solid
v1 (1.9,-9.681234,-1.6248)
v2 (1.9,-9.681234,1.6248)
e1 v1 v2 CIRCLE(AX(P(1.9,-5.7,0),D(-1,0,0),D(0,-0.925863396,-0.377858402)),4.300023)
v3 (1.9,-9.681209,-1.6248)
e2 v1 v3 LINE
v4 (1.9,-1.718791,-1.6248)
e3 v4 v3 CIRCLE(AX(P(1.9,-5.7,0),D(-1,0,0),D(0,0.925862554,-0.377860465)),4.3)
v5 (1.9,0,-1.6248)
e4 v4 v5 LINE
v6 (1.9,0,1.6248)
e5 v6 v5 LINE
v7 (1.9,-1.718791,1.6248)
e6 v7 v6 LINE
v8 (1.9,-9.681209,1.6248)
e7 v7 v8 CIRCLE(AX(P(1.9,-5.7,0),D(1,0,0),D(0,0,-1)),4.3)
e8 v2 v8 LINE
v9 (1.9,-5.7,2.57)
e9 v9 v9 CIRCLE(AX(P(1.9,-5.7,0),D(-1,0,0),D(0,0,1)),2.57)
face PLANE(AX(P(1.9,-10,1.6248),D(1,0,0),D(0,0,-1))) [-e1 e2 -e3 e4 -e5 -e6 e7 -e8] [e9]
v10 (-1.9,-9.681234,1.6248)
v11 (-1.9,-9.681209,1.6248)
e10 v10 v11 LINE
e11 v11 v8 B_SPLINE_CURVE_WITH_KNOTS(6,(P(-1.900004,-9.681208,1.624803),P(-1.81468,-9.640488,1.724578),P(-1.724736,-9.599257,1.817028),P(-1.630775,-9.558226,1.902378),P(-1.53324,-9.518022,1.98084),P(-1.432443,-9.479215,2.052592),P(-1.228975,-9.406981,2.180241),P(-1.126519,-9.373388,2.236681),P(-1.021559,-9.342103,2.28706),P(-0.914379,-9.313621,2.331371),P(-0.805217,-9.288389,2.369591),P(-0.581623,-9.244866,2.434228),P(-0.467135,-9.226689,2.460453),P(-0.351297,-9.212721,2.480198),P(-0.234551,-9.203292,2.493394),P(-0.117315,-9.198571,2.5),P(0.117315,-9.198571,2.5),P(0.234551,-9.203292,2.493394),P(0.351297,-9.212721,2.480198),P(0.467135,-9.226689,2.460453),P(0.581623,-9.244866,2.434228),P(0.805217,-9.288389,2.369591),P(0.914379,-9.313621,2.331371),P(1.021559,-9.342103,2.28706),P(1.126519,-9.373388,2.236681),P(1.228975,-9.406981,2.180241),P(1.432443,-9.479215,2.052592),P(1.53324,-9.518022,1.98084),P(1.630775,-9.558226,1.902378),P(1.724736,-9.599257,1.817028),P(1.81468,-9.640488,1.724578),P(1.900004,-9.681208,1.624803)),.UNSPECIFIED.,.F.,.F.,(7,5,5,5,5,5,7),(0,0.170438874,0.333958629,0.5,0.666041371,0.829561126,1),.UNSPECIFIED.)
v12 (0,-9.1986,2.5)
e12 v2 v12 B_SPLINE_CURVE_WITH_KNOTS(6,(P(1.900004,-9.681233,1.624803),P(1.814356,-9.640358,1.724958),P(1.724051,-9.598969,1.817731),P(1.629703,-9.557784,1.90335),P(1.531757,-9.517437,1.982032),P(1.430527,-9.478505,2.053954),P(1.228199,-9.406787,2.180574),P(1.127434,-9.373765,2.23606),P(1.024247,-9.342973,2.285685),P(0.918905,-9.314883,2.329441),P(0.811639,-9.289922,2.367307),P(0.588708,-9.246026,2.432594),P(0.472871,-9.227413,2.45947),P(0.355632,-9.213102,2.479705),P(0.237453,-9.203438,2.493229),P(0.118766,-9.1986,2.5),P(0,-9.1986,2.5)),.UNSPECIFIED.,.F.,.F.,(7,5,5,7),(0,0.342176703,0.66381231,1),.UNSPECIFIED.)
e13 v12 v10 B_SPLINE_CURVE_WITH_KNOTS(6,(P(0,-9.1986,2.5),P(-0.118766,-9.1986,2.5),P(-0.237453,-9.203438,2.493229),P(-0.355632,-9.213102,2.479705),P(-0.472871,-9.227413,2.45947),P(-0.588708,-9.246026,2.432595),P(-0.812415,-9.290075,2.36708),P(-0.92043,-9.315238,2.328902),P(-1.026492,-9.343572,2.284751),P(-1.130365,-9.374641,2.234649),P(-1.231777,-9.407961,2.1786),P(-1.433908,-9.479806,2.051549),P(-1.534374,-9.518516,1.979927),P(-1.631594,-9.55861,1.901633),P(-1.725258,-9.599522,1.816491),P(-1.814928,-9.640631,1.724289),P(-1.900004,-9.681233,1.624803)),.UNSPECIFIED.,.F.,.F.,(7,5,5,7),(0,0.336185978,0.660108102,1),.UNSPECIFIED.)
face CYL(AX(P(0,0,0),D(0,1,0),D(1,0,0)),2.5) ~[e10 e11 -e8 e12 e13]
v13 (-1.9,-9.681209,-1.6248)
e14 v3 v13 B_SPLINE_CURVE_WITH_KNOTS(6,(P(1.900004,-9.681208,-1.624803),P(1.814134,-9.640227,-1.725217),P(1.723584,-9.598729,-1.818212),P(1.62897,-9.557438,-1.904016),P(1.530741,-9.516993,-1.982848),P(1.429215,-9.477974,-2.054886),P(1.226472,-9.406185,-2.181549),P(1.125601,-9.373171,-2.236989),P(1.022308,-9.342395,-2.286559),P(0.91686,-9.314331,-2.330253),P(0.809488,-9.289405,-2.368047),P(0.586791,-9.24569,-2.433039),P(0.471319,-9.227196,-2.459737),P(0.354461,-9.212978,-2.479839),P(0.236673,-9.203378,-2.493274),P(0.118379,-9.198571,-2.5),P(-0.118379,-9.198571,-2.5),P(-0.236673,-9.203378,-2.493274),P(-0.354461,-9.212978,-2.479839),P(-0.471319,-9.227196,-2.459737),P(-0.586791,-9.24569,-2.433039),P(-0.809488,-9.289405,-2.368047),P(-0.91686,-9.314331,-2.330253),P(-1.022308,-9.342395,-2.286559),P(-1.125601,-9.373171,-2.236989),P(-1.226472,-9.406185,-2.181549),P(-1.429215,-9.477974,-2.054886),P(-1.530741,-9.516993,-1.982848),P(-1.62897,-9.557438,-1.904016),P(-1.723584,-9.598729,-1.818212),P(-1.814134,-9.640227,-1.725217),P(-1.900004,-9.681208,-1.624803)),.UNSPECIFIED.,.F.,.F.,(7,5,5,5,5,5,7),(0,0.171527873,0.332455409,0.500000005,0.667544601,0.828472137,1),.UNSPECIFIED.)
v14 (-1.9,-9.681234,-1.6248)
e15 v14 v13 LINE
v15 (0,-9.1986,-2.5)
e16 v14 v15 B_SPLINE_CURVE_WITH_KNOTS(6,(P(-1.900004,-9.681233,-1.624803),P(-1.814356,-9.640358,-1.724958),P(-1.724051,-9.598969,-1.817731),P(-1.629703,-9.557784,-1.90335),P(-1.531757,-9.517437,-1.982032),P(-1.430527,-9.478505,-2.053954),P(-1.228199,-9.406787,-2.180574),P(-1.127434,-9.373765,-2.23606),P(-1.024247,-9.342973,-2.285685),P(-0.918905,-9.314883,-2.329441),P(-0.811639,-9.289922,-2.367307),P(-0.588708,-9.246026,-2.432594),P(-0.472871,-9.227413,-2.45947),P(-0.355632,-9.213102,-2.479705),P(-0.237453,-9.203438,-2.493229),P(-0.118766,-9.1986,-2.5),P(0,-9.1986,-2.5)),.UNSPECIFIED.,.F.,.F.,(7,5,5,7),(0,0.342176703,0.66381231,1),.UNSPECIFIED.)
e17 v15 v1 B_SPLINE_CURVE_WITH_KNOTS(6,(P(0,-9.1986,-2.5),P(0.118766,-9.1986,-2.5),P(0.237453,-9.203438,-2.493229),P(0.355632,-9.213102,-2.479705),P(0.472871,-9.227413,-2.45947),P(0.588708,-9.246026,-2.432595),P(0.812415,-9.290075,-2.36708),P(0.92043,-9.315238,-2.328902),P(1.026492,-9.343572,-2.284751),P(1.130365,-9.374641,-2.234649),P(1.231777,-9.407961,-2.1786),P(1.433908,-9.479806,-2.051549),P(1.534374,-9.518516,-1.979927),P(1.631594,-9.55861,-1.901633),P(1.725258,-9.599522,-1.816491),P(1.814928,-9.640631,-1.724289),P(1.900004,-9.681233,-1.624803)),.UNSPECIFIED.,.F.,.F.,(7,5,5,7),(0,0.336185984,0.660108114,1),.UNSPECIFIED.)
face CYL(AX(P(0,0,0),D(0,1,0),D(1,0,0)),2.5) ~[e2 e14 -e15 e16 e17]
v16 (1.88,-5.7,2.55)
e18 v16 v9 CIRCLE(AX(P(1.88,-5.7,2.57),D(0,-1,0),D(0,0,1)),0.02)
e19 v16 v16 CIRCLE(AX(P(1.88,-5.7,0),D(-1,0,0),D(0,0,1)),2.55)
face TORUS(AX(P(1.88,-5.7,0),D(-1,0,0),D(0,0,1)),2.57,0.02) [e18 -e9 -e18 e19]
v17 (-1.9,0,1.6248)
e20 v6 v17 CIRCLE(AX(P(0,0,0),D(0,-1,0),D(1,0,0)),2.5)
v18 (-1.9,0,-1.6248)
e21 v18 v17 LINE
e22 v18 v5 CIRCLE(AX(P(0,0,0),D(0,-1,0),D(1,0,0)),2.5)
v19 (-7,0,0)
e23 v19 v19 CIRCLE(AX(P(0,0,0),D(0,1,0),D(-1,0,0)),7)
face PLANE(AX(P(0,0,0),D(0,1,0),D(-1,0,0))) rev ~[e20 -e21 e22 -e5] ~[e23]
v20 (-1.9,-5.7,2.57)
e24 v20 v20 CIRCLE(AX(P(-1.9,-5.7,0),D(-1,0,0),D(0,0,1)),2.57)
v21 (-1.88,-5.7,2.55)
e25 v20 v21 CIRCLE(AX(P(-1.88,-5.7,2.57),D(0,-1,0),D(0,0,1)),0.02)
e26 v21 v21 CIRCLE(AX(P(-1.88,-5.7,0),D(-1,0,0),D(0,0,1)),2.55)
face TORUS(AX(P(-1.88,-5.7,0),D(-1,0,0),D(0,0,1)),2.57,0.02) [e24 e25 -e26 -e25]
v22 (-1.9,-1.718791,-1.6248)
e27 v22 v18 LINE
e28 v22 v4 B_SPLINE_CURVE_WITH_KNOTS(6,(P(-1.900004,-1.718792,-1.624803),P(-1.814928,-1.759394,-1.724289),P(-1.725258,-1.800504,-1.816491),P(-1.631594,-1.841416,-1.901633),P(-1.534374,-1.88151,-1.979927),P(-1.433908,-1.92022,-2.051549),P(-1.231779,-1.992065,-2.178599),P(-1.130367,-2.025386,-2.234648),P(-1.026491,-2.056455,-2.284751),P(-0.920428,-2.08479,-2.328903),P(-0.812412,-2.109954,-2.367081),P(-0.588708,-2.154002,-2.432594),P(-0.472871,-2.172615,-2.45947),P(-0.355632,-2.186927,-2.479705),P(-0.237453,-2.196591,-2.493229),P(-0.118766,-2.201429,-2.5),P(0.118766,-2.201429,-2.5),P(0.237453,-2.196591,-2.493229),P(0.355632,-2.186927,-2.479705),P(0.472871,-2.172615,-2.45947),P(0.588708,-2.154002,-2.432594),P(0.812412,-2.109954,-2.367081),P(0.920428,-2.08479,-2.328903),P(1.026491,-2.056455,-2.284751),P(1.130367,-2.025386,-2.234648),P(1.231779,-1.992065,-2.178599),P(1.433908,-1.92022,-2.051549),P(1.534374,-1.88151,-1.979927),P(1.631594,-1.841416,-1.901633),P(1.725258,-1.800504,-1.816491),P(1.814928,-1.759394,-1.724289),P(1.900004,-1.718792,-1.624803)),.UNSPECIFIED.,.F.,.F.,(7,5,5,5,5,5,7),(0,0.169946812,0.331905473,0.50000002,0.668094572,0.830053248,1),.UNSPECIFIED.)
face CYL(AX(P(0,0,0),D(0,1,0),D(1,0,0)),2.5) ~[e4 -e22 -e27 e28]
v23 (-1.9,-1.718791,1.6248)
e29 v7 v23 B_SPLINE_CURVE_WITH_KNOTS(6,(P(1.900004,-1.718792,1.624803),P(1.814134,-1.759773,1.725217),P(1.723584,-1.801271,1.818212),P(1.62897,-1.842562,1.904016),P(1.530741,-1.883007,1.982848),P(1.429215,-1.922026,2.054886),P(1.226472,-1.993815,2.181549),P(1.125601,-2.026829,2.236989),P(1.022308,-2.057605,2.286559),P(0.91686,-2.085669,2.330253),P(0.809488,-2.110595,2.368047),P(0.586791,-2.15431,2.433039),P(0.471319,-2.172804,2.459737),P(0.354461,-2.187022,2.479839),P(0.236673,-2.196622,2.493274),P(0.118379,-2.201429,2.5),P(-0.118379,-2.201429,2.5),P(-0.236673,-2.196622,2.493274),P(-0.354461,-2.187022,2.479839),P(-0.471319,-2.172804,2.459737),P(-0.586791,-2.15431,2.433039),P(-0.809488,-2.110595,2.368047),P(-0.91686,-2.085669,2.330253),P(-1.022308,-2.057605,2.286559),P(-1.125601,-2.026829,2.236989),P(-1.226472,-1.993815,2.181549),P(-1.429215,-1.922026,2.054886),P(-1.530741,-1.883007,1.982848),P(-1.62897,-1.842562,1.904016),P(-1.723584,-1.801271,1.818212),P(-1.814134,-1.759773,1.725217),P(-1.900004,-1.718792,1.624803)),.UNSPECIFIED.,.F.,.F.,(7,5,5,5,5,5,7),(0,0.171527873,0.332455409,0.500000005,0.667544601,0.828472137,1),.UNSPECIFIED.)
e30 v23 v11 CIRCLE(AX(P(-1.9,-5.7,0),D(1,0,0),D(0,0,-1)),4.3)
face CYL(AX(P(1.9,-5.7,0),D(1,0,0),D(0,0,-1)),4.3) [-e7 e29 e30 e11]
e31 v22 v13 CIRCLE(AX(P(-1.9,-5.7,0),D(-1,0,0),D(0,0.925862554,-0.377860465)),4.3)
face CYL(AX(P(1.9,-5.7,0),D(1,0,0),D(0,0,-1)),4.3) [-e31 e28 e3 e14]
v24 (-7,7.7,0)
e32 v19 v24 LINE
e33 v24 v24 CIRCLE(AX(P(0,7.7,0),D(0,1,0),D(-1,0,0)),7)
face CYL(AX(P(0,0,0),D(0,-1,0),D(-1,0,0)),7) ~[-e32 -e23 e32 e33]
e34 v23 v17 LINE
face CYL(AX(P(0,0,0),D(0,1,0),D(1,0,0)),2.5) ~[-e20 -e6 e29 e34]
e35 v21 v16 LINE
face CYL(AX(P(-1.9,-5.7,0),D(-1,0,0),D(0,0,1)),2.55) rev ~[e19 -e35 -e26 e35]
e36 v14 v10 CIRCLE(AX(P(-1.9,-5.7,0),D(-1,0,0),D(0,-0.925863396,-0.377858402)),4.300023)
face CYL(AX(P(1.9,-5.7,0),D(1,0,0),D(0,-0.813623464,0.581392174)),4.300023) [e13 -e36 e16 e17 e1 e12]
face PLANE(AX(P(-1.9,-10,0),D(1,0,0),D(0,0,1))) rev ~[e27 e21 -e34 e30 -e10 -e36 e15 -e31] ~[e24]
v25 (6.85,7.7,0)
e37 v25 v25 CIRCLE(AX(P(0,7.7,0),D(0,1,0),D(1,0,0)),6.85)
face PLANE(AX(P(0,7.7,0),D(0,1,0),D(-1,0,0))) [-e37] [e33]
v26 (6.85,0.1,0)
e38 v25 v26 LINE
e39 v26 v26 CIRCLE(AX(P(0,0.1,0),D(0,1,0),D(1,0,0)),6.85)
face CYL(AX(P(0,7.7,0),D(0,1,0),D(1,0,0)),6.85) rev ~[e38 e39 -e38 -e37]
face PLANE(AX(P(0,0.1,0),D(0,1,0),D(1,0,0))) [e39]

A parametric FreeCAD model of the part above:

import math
import FreeCAD as App
import Part
import Sketcher
from FreeCAD import Vector


def edges_at(feature, points):
    """Names of the edges that pass closest to the given points."""
    edges = feature.Shape.Edges
    near = lambda p: min(range(len(edges)), key=lambda i: edges[i].distToShape(Part.Vertex(*p))[0])
    return sorted({f"Edge{near(p) + 1}" for p in points})

doc = App.newDocument("Part")
body = doc.addObject("PartDesign::Body", "Body")

sketch1 = doc.addObject("Sketcher::SketchObject", "Sketch")
body.addObject(sketch1)
sketch1.AttachmentSupport = (doc.XZ_Plane, [""])
sketch1.MapMode = "FlatFace"
sketch1.addGeometry(Part.Circle(Vector(0, 0, 0), Vector(0, 0, 1), 7), False)
sketch1.addConstraint(Sketcher.Constraint("Coincident", 0, 3, -1, 1))
sketch1.addConstraint(Sketcher.Constraint("Diameter", 0, 14.0))
pad1 = doc.addObject("PartDesign::Pad", "Pad")
body.addObject(pad1)
pad1.Profile = sketch1
pad1.Length = 7.7
pad1.Reversed = True

sketch2 = doc.addObject("Sketcher::SketchObject", "Sketch001")
body.addObject(sketch2)
sketch2.AttachmentSupport = (doc.XZ_Plane, [""])
sketch2.MapMode = "FlatFace"
sketch2.AttachmentOffset = App.Placement(Vector(0, 0, -7.7), App.Rotation())
sketch2.addGeometry(Part.Circle(Vector(0, 0, 0), Vector(0, 0, 1), 7), False)
sketch2.addConstraint(Sketcher.Constraint("Coincident", 0, 3, -1, 1))
sketch2.addConstraint(Sketcher.Constraint("Diameter", 0, 13.7))
pocket1 = doc.addObject("PartDesign::Pocket", "Pocket")
body.addObject(pocket1)
pocket1.Profile = sketch2
pocket1.Length = 7.6
pocket1.Reversed = True

sketch3 = doc.addObject("Sketcher::SketchObject", "Sketch002")
body.addObject(sketch3)
sketch3.AttachmentSupport = (doc.XZ_Plane, [""])
sketch3.MapMode = "FlatFace"
sketch3.addGeometry(Part.Circle(Vector(0, 0, 0), Vector(0, 0, 1), 2.5), False)
sketch3.addConstraint(Sketcher.Constraint("Coincident", 0, 3, -1, 1))
sketch3.addConstraint(Sketcher.Constraint("Diameter", 0, 5.0))
pad2 = doc.addObject("PartDesign::Pad", "Pad001")
body.addObject(pad2)
pad2.Profile = sketch3
pad2.Length = 10

sketch4 = doc.addObject("Sketcher::SketchObject", "Sketch003")
body.addObject(sketch4)
sketch4.AttachmentSupport = (doc.XZ_Plane, [""])
sketch4.MapMode = "FlatFace"
sketch4.AttachmentOffset = App.Placement(Vector(0, 0, 10), App.Rotation())
sketch4.addGeometry(Part.LineSegment(Vector(-1.9, -1.6, 0), Vector(-1.9, 1.6, 0)), False)
sketch4.addGeometry(Part.ArcOfCircle(Part.Circle(Vector(0, 0, 0), Vector(0, 0, 1), 2.5), math.radians(139), math.radians(221)), False)
sketch4.addGeometry(Part.ArcOfCircle(Part.Circle(Vector(0, 0, 0), Vector(0, 0, 1), 2.5), math.radians(-41), math.radians(41)), False)
sketch4.addGeometry(Part.LineSegment(Vector(1.9, 1.6, 0), Vector(1.9, -1.6, 0)), False)
sketch4.addConstraint(Sketcher.Constraint("Coincident", 0, 1, 1, 2))
sketch4.addConstraint(Sketcher.Constraint("Coincident", 1, 1, 0, 2))
sketch4.addConstraint(Sketcher.Constraint("Coincident", 2, 1, 3, 2))
sketch4.addConstraint(Sketcher.Constraint("Coincident", 3, 1, 2, 2))
sketch4.addConstraint(Sketcher.Constraint("Vertical", 0))
sketch4.addConstraint(Sketcher.Constraint("Vertical", 3))
sketch4.addConstraint(Sketcher.Constraint("Coincident", 1, 3, -1, 1))
sketch4.addConstraint(Sketcher.Constraint("Coincident", 2, 3, -1, 1))
sketch4.addConstraint(Sketcher.Constraint("Equal", 1, 2))
sketch4.addConstraint(Sketcher.Constraint("Horizontal", 0, 1, 2, 1))
sketch4.addConstraint(Sketcher.Constraint("Radius", 1, 2.5))
sketch4.addConstraint(Sketcher.Constraint("DistanceX", 0, 1, -1, 1, 1.9))
pocket2 = doc.addObject("PartDesign::Pocket", "Pocket001")
body.addObject(pocket2)
pocket2.Profile = sketch4
pocket2.Length = 10

sketch5 = doc.addObject("Sketcher::SketchObject", "Sketch004")
body.addObject(sketch5)
sketch5.AttachmentSupport = (doc.YZ_Plane, [""])
sketch5.MapMode = "FlatFace"
sketch5.AttachmentOffset = App.Placement(Vector(0, 0, 1.9), App.Rotation())
sketch5.addGeometry(Part.Circle(Vector(-5.7, 0, 0), Vector(0, 0, 1), 4.3), False)
sketch5.addConstraint(Sketcher.Constraint("PointOnObject", 0, 3, -1))
sketch5.addConstraint(Sketcher.Constraint("Diameter", 0, 8.6))
sketch5.addConstraint(Sketcher.Constraint("DistanceX", 0, 3, -1, 1, 5.7))
pad3 = doc.addObject("PartDesign::Pad", "Pad002")
body.addObject(pad3)
pad3.Profile = sketch5
pad3.Length = 3.8
pad3.Reversed = True

sketch6 = doc.addObject("Sketcher::SketchObject", "Sketch005")
body.addObject(sketch6)
sketch6.AttachmentSupport = (doc.YZ_Plane, [""])
sketch6.MapMode = "FlatFace"
sketch6.AttachmentOffset = App.Placement(Vector(0, 0, 1.9), App.Rotation())
sketch6.addGeometry(Part.ArcOfCircle(Part.Circle(Vector(-5.7, 0, 0), Vector(0, 0, 1), 4.3), math.radians(180), math.radians(216)), False)
sketch6.addGeometry(Part.LineSegment(Vector(-10, 0, 0), Vector(-10, -2.5, 0)), False)
sketch6.addGeometry(Part.LineSegment(Vector(-10, -2.5, 0), Vector(-9.2, -2.5, 0)), False)
sketch6.addGeometry(Part.ArcOfCircle(Part.Circle(Vector(-5.7, 0, 0), Vector(0, 0, 1), 4.3), math.radians(144), math.radians(180)), False)
sketch6.addGeometry(Part.LineSegment(Vector(-9.2, 2.5, 0), Vector(-10, 2.5, 0)), False)
sketch6.addGeometry(Part.LineSegment(Vector(-10, 2.5, 0), Vector(-10, 0, 0)), False)
sketch6.addConstraint(Sketcher.Constraint("Tangent", 0, 1, 1, 1))
sketch6.addConstraint(Sketcher.Constraint("Coincident", 1, 2, 2, 1))
sketch6.addConstraint(Sketcher.Constraint("Coincident", 2, 2, 0, 2))
sketch6.addConstraint(Sketcher.Constraint("Coincident", 3, 1, 4, 1))
sketch6.addConstraint(Sketcher.Constraint("Coincident", 4, 2, 5, 1))
sketch6.addConstraint(Sketcher.Constraint("Tangent", 5, 2, 3, 2))
sketch6.addConstraint(Sketcher.Constraint("Vertical", 1))
sketch6.addConstraint(Sketcher.Constraint("Horizontal", 2))
sketch6.addConstraint(Sketcher.Constraint("Horizontal", 4))
sketch6.addConstraint(Sketcher.Constraint("Vertical", 5))
sketch6.addConstraint(Sketcher.Constraint("Coincident", 3, 3, 0, 3))
sketch6.addConstraint(Sketcher.Constraint("Equal", 0, 3))
sketch6.addConstraint(Sketcher.Constraint("Symmetric", 2, 2, 3, 1, -1))
sketch6.addConstraint(Sketcher.Constraint("Radius", 0, 4.3))
sketch6.addConstraint(Sketcher.Constraint("DistanceY", 1, 2, 1, 1, 2.5))
sketch6.addConstraint(Sketcher.Constraint("DistanceX", 0, 1, -1, 1, 10.0))
pocket3 = doc.addObject("PartDesign::Pocket", "Pocket002")
body.addObject(pocket3)
pocket3.Profile = sketch6
pocket3.Length = 3.8

sketch7 = doc.addObject("Sketcher::SketchObject", "Sketch006")
body.addObject(sketch7)
sketch7.AttachmentSupport = (doc.YZ_Plane, [""])
sketch7.MapMode = "FlatFace"
sketch7.AttachmentOffset = App.Placement(Vector(0, 0, -1.9), App.Rotation())
sketch7.addGeometry(Part.Circle(Vector(-5.7, 0, 0), Vector(0, 0, 1), 2.5), False)
sketch7.addConstraint(Sketcher.Constraint("PointOnObject", 0, 3, -1))
sketch7.addConstraint(Sketcher.Constraint("Diameter", 0, 5.1))
sketch7.addConstraint(Sketcher.Constraint("DistanceX", 0, 3, -1, 1, 5.7))
pocket4 = doc.addObject("PartDesign::Pocket", "Pocket003")
body.addObject(pocket4)
pocket4.Profile = sketch7
pocket4.Length = 3.8
pocket4.Reversed = True
doc.recompute()

fillet = doc.addObject("PartDesign::Fillet", "Fillet")
body.addObject(fillet)
fillet.Base = (pocket4, edges_at(pocket4, [(1.9, -5.7, -2.55), (-1.9, -5.7, -2.55)]))
fillet.Radius = 0.02

doc.recompute()
